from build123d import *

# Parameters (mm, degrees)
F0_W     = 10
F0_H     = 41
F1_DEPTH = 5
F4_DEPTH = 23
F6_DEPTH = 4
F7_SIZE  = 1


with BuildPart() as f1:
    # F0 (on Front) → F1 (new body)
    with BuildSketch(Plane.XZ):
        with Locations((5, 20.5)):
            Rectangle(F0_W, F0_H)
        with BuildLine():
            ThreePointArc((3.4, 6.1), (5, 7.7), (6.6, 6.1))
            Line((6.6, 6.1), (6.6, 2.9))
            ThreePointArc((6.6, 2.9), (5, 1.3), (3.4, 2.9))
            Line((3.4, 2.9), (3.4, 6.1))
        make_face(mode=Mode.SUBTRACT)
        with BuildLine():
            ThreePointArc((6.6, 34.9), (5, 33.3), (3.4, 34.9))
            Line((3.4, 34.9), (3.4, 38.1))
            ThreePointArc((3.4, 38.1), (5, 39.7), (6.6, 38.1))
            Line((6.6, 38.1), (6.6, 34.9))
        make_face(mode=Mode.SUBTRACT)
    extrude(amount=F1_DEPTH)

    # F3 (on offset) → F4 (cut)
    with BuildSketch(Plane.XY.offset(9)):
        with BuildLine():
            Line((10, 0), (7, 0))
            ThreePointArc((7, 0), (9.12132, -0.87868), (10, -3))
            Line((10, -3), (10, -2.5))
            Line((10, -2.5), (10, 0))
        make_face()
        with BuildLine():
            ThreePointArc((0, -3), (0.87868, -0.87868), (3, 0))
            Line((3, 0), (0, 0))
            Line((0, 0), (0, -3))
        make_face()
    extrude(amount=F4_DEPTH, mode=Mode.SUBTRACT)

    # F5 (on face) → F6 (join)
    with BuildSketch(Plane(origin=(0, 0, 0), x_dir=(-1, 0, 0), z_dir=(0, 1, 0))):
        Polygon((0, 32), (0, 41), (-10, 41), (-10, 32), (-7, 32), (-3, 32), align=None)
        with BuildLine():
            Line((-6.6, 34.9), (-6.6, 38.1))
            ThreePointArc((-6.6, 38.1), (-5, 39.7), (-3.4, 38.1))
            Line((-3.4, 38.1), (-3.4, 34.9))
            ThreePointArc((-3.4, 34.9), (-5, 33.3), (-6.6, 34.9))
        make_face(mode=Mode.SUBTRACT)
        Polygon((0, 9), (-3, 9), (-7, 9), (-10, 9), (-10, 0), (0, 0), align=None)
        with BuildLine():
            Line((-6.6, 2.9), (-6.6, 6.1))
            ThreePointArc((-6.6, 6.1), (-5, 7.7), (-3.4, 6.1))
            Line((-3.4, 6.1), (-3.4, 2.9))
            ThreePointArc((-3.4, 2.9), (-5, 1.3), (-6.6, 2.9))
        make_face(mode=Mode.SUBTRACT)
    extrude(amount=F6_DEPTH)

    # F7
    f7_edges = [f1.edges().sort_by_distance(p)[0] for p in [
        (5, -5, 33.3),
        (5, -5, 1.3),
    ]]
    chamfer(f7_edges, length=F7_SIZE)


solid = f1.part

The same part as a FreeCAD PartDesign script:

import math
import FreeCAD as App
import Part
import Sketcher

V = App.Vector


def edges_at(feature, points):
    """Names of the edges that pass closest to the given points."""
    edges = feature.Shape.Edges
    near = lambda p: min(range(len(edges)), key=lambda i: edges[i].distToShape(Part.Vertex(*p))[0])
    return sorted({f"Edge{near(p) + 1}" for p in points})

doc = App.newDocument("Part")
body = doc.addObject("PartDesign::Body", "Body")

sketch1 = body.newObject("Sketcher::SketchObject", "Sketch")
sketch1.AttachmentSupport = (doc.getObject("XZ_Plane"), [""])
sketch1.MapMode = "FlatFace"
sketch1.addGeometry(Part.LineSegment(V(0, 41, 0), V(0, 0, 0)), False)
sketch1.addGeometry(Part.LineSegment(V(0, 0, 0), V(10, 0, 0)), False)
sketch1.addGeometry(Part.LineSegment(V(10, 0, 0), V(10, 41, 0)), False)
sketch1.addGeometry(Part.LineSegment(V(10, 41, 0), V(0, 41, 0)), False)
sketch1.addGeometry(Part.LineSegment(V(3.4, 2.9, 0), V(3.4, 6.1, 0)), False)
sketch1.addGeometry(Part.ArcOfCircle(Part.Circle(V(5, 6.1, 0), V(0, 0, 1), 1.6), math.radians(0), math.radians(180)), False)
sketch1.addGeometry(Part.LineSegment(V(6.6, 6.1, 0), V(6.6, 2.9, 0)), False)
sketch1.addGeometry(Part.ArcOfCircle(Part.Circle(V(5, 2.9, 0), V(0, 0, 1), 1.6), math.radians(180), math.radians(360)), False)
sketch1.addGeometry(Part.LineSegment(V(6.6, 38.1, 0), V(6.6, 34.9, 0)), False)
sketch1.addGeometry(Part.ArcOfCircle(Part.Circle(V(5, 34.9, 0), V(0, 0, 1), 1.6), math.radians(180), math.radians(360)), False)
sketch1.addGeometry(Part.LineSegment(V(3.4, 34.9, 0), V(3.4, 38.1, 0)), False)
sketch1.addGeometry(Part.ArcOfCircle(Part.Circle(V(5, 38.1, 0), V(0, 0, 1), 1.6), math.radians(0), math.radians(180)), False)
sketch1.addConstraint(Sketcher.Constraint("Coincident", 0, 2, 1, 1))
sketch1.addConstraint(Sketcher.Constraint("Coincident", 1, 2, 2, 1))
sketch1.addConstraint(Sketcher.Constraint("Coincident", 2, 2, 3, 1))
sketch1.addConstraint(Sketcher.Constraint("Coincident", 3, 2, 0, 1))
sketch1.addConstraint(Sketcher.Constraint("Tangent", 4, 2, 5, 2))
sketch1.addConstraint(Sketcher.Constraint("Tangent", 5, 1, 6, 1))
sketch1.addConstraint(Sketcher.Constraint("Tangent", 6, 2, 7, 2))
sketch1.addConstraint(Sketcher.Constraint("Tangent", 7, 1, 4, 1))
sketch1.addConstraint(Sketcher.Constraint("Tangent", 8, 2, 9, 2))
sketch1.addConstraint(Sketcher.Constraint("Tangent", 9, 1, 10, 1))
sketch1.addConstraint(Sketcher.Constraint("Tangent", 10, 2, 11, 2))
sketch1.addConstraint(Sketcher.Constraint("Tangent", 11, 1, 8, 1))
sketch1.addConstraint(Sketcher.Constraint("Vertical", 0))
sketch1.addConstraint(Sketcher.Constraint("Horizontal", 1))
sketch1.addConstraint(Sketcher.Constraint("Vertical", 2))
sketch1.addConstraint(Sketcher.Constraint("Horizontal", 3))
sketch1.addConstraint(Sketcher.Constraint("Vertical", 4))
sketch1.addConstraint(Sketcher.Constraint("Vertical", 6))
sketch1.addConstraint(Sketcher.Constraint("Vertical", 8))
sketch1.addConstraint(Sketcher.Constraint("Vertical", 10))
sketch1.addConstraint(Sketcher.Constraint("Coincident", 0, 2, -1, 1))
sketch1.addConstraint(Sketcher.Constraint("Equal", 7, 9))
sketch1.addConstraint(Sketcher.Constraint("Vertical", 7, 3, 9, 3))
sketch1.addConstraint(Sketcher.Constraint("Equal", 6, 8))
sketch1.addConstraint(Sketcher.Constraint("Radius", 5, 1.6))
sketch1.addConstraint(Sketcher.Constraint("DistanceX", 1, 1, 1, 2, 10.0))
sketch1.addConstraint(Sketcher.Constraint("DistanceY", 0, 2, 0, 1, 41.0))
sketch1.addConstraint(Sketcher.Constraint("DistanceY", 4, 1, 4, 2, 3.2))
sketch1.addConstraint(Sketcher.Constraint("DistanceX", -1, 1, 5, 3, 5.0))
sketch1.addConstraint(Sketcher.Constraint("DistanceY", 7, 3, 9, 3, 32.0))
sketch1.addConstraint(Sketcher.Constraint("DistanceY", -1, 1, 5, 3, 6.1))
pad1 = body.newObject("PartDesign::Pad", "Pad")
pad1.Profile = sketch1
pad1.Length = 5

sketch2 = body.newObject("Sketcher::SketchObject", "Sketch001")
sketch2.AttachmentSupport = (doc.getObject("XY_Plane"), [""])
sketch2.MapMode = "FlatFace"
sketch2.AttachmentOffset = App.Placement(V(0, 0, 9), App.Rotation())
sketch2.addGeometry(Part.LineSegment(V(10, 0, 0), V(7, 0, 0)), False)
sketch2.addGeometry(Part.ArcOfCircle(Part.Circle(V(6.999999, -3.000001, 0), V(0, 0, 1), 3.000001), math.radians(0.000022), math.radians(89.999978)), False)
sketch2.addGeometry(Part.LineSegment(V(10, -3, 0), V(10, 0, 0)), False)
sketch2.addGeometry(Part.ArcOfCircle(Part.Circle(V(3.000001, -3.000001, 0), V(0, 0, 1), 3.000001), math.radians(90.000022), math.radians(179.999978)), False)
sketch2.addGeometry(Part.LineSegment(V(3, 0, 0), V(0, 0, 0)), False)
sketch2.addGeometry(Part.LineSegment(V(0, 0, 0), V(0, -3, 0)), False)
sketch2.addConstraint(Sketcher.Constraint("Tangent", 0, 2, 1, 2))
sketch2.addConstraint(Sketcher.Constraint("Tangent", 1, 1, 2, 1))
sketch2.addConstraint(Sketcher.Constraint("Coincident", 2, 2, 0, 1))
sketch2.addConstraint(Sketcher.Constraint("Tangent", 3, 1, 4, 1))
sketch2.addConstraint(Sketcher.Constraint("Coincident", 4, 2, 5, 1))
sketch2.addConstraint(Sketcher.Constraint("Tangent", 5, 2, 3, 2))
sketch2.addConstraint(Sketcher.Constraint("Horizontal", 0))
sketch2.addConstraint(Sketcher.Constraint("Vertical", 2))
sketch2.addConstraint(Sketcher.Constraint("Horizontal", 4))
sketch2.addConstraint(Sketcher.Constraint("Vertical", 5))
sketch2.addConstraint(Sketcher.Constraint("Coincident", 4, 2, -1, 1))
sketch2.addConstraint(Sketcher.Constraint("Equal", 1, 3))
sketch2.addConstraint(Sketcher.Constraint("PointOnObject", 0, 2, -1))
sketch2.addConstraint(Sketcher.Constraint("Radius", 1, 3.000001))
sketch2.addConstraint(Sketcher.Constraint("DistanceX", -1, 1, 1, 3, 6.999999))
pocket1 = body.newObject("PartDesign::Pocket", "Pocket")
pocket1.Profile = sketch2
pocket1.Length = 23
pocket1.Reversed = True

sketch3 = body.newObject("Sketcher::SketchObject", "Sketch002")
sketch3.AttachmentSupport = (doc.getObject("XZ_Plane"), [""])
sketch3.MapMode = "FlatFace"
sketch3.addGeometry(Part.LineSegment(V(0, 32, 0), V(0, 41, 0)), False)
sketch3.addGeometry(Part.LineSegment(V(0, 41, 0), V(10, 41, 0)), False)
sketch3.addGeometry(Part.LineSegment(V(10, 41, 0), V(10, 32, 0)), False)
sketch3.addGeometry(Part.LineSegment(V(10, 32, 0), V(0, 32, 0)), False)
sketch3.addGeometry(Part.ArcOfCircle(Part.Circle(V(5, 34.9, 0), V(0, 0, 1), 1.6), math.radians(180), math.radians(360)), False)
sketch3.addGeometry(Part.LineSegment(V(6.6, 34.9, 0), V(6.6, 38.1, 0)), False)
sketch3.addGeometry(Part.ArcOfCircle(Part.Circle(V(5, 38.1, 0), V(0, 0, 1), 1.6), math.radians(0), math.radians(180)), False)
sketch3.addGeometry(Part.LineSegment(V(3.4, 38.1, 0), V(3.4, 34.9, 0)), False)
sketch3.addGeometry(Part.LineSegment(V(0, 9, 0), V(10, 9, 0)), False)
sketch3.addGeometry(Part.LineSegment(V(10, 9, 0), V(10, 0, 0)), False)
sketch3.addGeometry(Part.LineSegment(V(10, 0, 0), V(0, 0, 0)), False)
sketch3.addGeometry(Part.LineSegment(V(0, 0, 0), V(0, 9, 0)), False)
sketch3.addGeometry(Part.ArcOfCircle(Part.Circle(V(5, 2.9, 0), V(0, 0, 1), 1.6), math.radians(180), math.radians(360)), False)
sketch3.addGeometry(Part.LineSegment(V(6.6, 2.9, 0), V(6.6, 6.1, 0)), False)
sketch3.addGeometry(Part.ArcOfCircle(Part.Circle(V(5, 6.1, 0), V(0, 0, 1), 1.6), math.radians(0), math.radians(180)), False)
sketch3.addGeometry(Part.LineSegment(V(3.4, 6.1, 0), V(3.4, 2.9, 0)), False)
sketch3.addConstraint(Sketcher.Constraint("Coincident", 0, 2, 1, 1))
sketch3.addConstraint(Sketcher.Constraint("Coincident", 1, 2, 2, 1))
sketch3.addConstraint(Sketcher.Constraint("Coincident", 2, 2, 3, 1))
sketch3.addConstraint(Sketcher.Constraint("Coincident", 3, 2, 0, 1))
sketch3.addConstraint(Sketcher.Constraint("Tangent", 4, 2, 5, 1))
sketch3.addConstraint(Sketcher.Constraint("Tangent", 5, 2, 6, 1))
sketch3.addConstraint(Sketcher.Constraint("Tangent", 6, 2, 7, 1))
sketch3.addConstraint(Sketcher.Constraint("Tangent", 7, 2, 4, 1))
sketch3.addConstraint(Sketcher.Constraint("Coincident", 8, 2, 9, 1))
sketch3.addConstraint(Sketcher.Constraint("Coincident", 9, 2, 10, 1))
sketch3.addConstraint(Sketcher.Constraint("Coincident", 10, 2, 11, 1))
sketch3.addConstraint(Sketcher.Constraint("Coincident", 11, 2, 8, 1))
sketch3.addConstraint(Sketcher.Constraint("Tangent", 12, 2, 13, 1))
sketch3.addConstraint(Sketcher.Constraint("Tangent", 13, 2, 14, 1))
sketch3.addConstraint(Sketcher.Constraint("Tangent", 14, 2, 15, 1))
sketch3.addConstraint(Sketcher.Constraint("Tangent", 15, 2, 12, 1))
sketch3.addConstraint(Sketcher.Constraint("Vertical", 0))
sketch3.addConstraint(Sketcher.Constraint("Horizontal", 1))
sketch3.addConstraint(Sketcher.Constraint("Vertical", 2))
sketch3.addConstraint(Sketcher.Constraint("Horizontal", 3))
sketch3.addConstraint(Sketcher.Constraint("Vertical", 5))
sketch3.addConstraint(Sketcher.Constraint("Vertical", 7))
sketch3.addConstraint(Sketcher.Constraint("Horizontal", 8))
sketch3.addConstraint(Sketcher.Constraint("Vertical", 9))
sketch3.addConstraint(Sketcher.Constraint("Horizontal", 10))
sketch3.addConstraint(Sketcher.Constraint("Vertical", 11))
sketch3.addConstraint(Sketcher.Constraint("Vertical", 13))
sketch3.addConstraint(Sketcher.Constraint("Vertical", 15))
sketch3.addConstraint(Sketcher.Constraint("Coincident", 10, 2, -1, 1))
sketch3.addConstraint(Sketcher.Constraint("Equal", 6, 12))
sketch3.addConstraint(Sketcher.Constraint("PointOnObject", 0, 2, -2))
sketch3.addConstraint(Sketcher.Constraint("Vertical", 6, 3, 12, 3))
sketch3.addConstraint(Sketcher.Constraint("Vertical", 2, 2, 8, 2))
sketch3.addConstraint(Sketcher.Constraint("Equal", 2, 9))
sketch3.addConstraint(Sketcher.Constraint("Equal", 7, 13))
sketch3.addConstraint(Sketcher.Constraint("Radius", 4, 1.6))
sketch3.addConstraint(Sketcher.Constraint("DistanceX", 1, 1, 1, 2, 10.0))
sketch3.addConstraint(Sketcher.Constraint("DistanceY", 0, 1, 0, 2, 9.0))
sketch3.addConstraint(Sketcher.Constraint("DistanceY", 5, 1, 5, 2, 3.2))
sketch3.addConstraint(Sketcher.Constraint("DistanceX", -1, 1, 4, 3, 5.0))
sketch3.addConstraint(Sketcher.Constraint("DistanceY", -1, 1, 0, 2, 41.0))
sketch3.addConstraint(Sketcher.Constraint("DistanceY", 12, 3, 4, 3, 32.0))
sketch3.addConstraint(Sketcher.Constraint("DistanceY", -1, 1, 4, 3, 34.9))
pad2 = body.newObject("PartDesign::Pad", "Pad001")
pad2.Profile = sketch3
pad2.Length = 4
pad2.Reversed = True
doc.recompute()

chamfer = body.newObject("PartDesign::Chamfer", "Chamfer")
chamfer.Base = (pad2, edges_at(pad2, [(5, -5, 33.3), (5, -5, 1.3)]))
chamfer.Size = 1

doc.recompute()
